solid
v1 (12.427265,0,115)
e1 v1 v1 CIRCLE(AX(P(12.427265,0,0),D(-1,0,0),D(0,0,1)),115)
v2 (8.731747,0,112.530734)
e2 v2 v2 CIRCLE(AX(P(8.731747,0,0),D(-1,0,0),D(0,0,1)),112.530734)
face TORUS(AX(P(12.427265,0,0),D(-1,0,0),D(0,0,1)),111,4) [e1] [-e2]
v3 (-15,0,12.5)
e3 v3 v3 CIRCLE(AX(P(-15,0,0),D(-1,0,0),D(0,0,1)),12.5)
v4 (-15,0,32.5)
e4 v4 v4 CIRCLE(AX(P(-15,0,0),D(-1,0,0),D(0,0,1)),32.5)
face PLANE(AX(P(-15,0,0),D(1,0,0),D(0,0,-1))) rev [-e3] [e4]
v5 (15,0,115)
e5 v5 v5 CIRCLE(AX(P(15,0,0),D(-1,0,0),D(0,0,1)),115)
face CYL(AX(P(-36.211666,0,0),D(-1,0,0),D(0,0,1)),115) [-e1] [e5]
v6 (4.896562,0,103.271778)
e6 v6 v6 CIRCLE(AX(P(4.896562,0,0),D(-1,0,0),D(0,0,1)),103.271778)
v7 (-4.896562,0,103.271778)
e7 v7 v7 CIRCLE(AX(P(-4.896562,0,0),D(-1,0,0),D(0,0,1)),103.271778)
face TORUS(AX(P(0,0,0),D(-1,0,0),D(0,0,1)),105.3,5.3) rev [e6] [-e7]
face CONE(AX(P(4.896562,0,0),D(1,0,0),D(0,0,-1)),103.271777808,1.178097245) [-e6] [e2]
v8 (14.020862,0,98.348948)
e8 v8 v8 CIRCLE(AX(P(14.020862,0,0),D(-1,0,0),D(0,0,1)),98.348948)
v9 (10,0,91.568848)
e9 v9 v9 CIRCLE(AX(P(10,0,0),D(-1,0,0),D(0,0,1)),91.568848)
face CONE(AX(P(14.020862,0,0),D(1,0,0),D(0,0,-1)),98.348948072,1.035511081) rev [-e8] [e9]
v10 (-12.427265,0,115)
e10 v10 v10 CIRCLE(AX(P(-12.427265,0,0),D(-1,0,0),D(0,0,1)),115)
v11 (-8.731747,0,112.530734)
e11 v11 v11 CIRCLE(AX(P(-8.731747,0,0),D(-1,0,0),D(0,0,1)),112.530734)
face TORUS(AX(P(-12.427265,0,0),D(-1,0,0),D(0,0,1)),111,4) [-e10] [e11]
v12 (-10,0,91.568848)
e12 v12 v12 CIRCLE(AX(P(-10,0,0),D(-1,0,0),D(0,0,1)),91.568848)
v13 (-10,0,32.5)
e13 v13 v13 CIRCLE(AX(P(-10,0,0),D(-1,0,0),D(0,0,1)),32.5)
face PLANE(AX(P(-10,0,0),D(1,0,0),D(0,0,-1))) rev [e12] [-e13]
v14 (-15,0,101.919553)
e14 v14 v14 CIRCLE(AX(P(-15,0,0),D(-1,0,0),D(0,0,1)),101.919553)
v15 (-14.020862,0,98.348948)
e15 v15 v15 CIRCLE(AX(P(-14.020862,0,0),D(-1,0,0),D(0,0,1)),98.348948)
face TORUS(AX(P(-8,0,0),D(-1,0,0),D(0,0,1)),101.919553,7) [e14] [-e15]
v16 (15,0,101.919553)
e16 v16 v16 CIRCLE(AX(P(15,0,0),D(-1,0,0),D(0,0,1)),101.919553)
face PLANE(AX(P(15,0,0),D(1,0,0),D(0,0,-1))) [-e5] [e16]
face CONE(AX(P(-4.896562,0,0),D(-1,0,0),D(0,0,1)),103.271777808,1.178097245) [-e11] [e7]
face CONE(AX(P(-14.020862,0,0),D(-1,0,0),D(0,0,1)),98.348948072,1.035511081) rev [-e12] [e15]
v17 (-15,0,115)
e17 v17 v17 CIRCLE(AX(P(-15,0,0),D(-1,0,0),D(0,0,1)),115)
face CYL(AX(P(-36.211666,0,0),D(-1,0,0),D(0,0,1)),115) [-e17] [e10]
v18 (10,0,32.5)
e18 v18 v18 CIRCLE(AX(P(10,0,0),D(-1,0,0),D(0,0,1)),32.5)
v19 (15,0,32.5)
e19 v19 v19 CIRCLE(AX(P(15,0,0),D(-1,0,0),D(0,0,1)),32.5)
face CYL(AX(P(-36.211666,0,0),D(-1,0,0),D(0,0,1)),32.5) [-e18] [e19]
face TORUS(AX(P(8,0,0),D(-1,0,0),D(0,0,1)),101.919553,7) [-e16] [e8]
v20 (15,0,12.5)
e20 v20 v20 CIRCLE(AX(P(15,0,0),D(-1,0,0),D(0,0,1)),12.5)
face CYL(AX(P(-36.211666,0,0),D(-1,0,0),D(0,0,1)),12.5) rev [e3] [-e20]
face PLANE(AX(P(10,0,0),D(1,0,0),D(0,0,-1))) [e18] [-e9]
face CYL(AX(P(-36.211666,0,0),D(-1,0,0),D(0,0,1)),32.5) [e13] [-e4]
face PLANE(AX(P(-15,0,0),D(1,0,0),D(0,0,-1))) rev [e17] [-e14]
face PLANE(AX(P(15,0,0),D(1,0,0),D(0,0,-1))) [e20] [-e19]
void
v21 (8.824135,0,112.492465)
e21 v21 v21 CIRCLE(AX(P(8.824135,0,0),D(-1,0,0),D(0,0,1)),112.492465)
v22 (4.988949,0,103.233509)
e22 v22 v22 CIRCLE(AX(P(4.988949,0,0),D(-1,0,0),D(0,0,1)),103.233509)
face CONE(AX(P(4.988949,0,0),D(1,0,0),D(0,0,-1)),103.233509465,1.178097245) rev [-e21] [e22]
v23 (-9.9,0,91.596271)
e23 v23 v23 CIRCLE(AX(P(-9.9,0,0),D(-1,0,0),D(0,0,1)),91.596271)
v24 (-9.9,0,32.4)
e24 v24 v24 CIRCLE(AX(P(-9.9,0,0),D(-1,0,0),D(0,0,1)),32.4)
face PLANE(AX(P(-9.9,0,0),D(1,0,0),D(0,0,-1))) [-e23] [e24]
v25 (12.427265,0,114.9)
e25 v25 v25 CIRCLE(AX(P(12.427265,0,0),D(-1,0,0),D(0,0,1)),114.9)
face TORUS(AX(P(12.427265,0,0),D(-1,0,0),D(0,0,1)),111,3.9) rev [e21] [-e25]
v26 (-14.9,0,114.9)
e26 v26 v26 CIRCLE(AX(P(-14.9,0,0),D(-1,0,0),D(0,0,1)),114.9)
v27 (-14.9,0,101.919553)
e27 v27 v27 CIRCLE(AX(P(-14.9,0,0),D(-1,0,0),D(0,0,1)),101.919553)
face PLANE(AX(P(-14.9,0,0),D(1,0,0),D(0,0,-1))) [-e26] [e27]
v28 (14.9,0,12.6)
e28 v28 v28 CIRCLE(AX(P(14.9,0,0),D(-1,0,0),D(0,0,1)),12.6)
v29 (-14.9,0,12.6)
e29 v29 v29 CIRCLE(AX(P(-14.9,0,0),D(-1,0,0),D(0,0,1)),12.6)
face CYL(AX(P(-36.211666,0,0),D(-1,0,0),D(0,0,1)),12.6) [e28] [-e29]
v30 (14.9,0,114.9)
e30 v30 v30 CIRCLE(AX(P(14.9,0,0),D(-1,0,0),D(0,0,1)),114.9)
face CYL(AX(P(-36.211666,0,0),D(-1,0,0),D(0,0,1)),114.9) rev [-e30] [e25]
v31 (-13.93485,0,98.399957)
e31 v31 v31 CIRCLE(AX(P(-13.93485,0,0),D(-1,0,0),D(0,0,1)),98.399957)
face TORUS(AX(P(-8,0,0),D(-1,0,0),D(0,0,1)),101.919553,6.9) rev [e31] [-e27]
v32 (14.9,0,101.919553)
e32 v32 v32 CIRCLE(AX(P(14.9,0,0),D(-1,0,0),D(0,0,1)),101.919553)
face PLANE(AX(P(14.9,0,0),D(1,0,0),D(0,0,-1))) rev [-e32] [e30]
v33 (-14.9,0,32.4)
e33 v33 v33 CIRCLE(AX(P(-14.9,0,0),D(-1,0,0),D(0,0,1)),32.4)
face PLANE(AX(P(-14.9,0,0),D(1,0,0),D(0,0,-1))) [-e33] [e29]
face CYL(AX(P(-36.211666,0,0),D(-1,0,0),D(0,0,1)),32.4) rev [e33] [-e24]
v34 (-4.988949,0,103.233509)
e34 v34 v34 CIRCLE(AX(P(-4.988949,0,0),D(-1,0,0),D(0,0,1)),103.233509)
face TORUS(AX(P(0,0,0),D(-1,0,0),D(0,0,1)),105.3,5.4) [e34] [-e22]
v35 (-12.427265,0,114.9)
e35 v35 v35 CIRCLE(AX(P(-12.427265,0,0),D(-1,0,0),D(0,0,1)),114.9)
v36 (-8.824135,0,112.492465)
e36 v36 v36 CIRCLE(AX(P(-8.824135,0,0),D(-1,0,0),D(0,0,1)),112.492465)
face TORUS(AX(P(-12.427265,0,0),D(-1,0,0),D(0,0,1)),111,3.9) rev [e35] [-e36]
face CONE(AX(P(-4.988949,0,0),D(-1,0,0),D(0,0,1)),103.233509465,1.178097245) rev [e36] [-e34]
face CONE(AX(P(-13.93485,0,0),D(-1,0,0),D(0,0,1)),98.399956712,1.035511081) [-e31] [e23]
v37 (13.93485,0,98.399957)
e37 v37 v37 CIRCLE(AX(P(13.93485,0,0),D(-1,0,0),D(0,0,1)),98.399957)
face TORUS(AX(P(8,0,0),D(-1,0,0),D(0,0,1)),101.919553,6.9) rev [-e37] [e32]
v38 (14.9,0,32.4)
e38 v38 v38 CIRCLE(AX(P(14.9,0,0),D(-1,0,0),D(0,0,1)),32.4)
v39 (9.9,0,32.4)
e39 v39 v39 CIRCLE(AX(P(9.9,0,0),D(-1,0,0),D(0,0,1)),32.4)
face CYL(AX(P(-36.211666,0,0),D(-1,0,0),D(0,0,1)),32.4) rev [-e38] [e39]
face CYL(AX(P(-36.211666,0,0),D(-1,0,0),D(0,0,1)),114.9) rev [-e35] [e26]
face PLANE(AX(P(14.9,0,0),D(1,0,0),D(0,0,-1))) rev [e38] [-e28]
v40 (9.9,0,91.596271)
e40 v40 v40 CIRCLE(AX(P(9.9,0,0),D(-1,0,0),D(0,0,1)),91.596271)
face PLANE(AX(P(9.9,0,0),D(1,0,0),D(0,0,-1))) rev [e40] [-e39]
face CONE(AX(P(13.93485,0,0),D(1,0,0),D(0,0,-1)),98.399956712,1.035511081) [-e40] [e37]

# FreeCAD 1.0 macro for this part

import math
import FreeCAD as App
import Part
import Sketcher
Q = App.Units.Quantity

doc = App.newDocument("Part")
body = doc.addObject("PartDesign::Body", "Body")

sketch1 = doc.addObject("Sketcher::SketchObject", "Sketch")
body.addObject(sketch1)
sketch1.AttachmentSupport = (doc.XY_Plane, [""])
sketch1.MapMode = "FlatFace"
sketch1.addGeometry([
    Part.LineSegment(App.Vector(15, 101.9, 0), App.Vector(15, 115, 0)),
    Part.LineSegment(App.Vector(15, 115, 0), App.Vector(12.4, 115, 0)),
    Part.ArcOfCircle(Part.Circle(App.Vector(12.4, 111, 0), App.Vector(0, 0, 1), 4), math.radians(90), math.radians(158)),
    Part.LineSegment(App.Vector(8.7, 112.5, 0), App.Vector(4.9, 103.3, 0)),
    Part.ArcOfCircle(Part.Circle(App.Vector(0, 105.3, 0), App.Vector(0, 0, 1), 5.3), math.radians(-157), math.radians(-23)),
    Part.LineSegment(App.Vector(-4.9, 103.3, 0), App.Vector(-8.7, 112.5, 0)),
    Part.ArcOfCircle(Part.Circle(App.Vector(-12.4, 111, 0), App.Vector(0, 0, 1), 4), math.radians(22), math.radians(90)),
    Part.LineSegment(App.Vector(-12.4, 115, 0), App.Vector(-15, 115, 0)),
    Part.LineSegment(App.Vector(-15, 115, 0), App.Vector(-15, 101.9, 0)),
    Part.ArcOfCircle(Part.Circle(App.Vector(-8, 101.9, 0), App.Vector(0, 0, 1), 7), math.radians(-180), math.radians(-149)),
    Part.LineSegment(App.Vector(-14, 98.3, 0), App.Vector(-10, 91.6, 0)),
    Part.LineSegment(App.Vector(-10, 91.6, 0), App.Vector(-10, 32.5, 0)),
    Part.LineSegment(App.Vector(-10, 32.5, 0), App.Vector(-15, 32.5, 0)),
    Part.LineSegment(App.Vector(-15, 32.5, 0), App.Vector(-15, 12.5, 0)),
    Part.LineSegment(App.Vector(-15, 12.5, 0), App.Vector(15, 12.5, 0)),
    Part.LineSegment(App.Vector(15, 12.5, 0), App.Vector(15, 32.5, 0)),
    Part.LineSegment(App.Vector(15, 32.5, 0), App.Vector(10, 32.5, 0)),
    Part.LineSegment(App.Vector(10, 32.5, 0), App.Vector(10, 91.6, 0)),
    Part.LineSegment(App.Vector(10, 91.6, 0), App.Vector(14, 98.3, 0)),
    Part.ArcOfCircle(Part.Circle(App.Vector(8, 101.9, 0), App.Vector(0, 0, 1), 7), math.radians(-31), math.radians(0)),
    Part.LineSegment(App.Vector(14.9, 114.9, 0), App.Vector(14.9, 101.9, 0)),
    Part.ArcOfCircle(Part.Circle(App.Vector(8, 101.9, 0), App.Vector(0, 0, 1), 6.9), math.radians(-31), math.radians(0)),
    Part.LineSegment(App.Vector(13.9, 98.4, 0), App.Vector(9.9, 91.6, 0)),
    Part.LineSegment(App.Vector(9.9, 91.6, 0), App.Vector(9.9, 32.4, 0)),
    Part.LineSegment(App.Vector(9.9, 32.4, 0), App.Vector(14.9, 32.4, 0)),
    Part.LineSegment(App.Vector(14.9, 32.4, 0), App.Vector(14.9, 12.6, 0)),
    Part.LineSegment(App.Vector(14.9, 12.6, 0), App.Vector(-14.9, 12.6, 0)),
    Part.LineSegment(App.Vector(-14.9, 12.6, 0), App.Vector(-14.9, 32.4, 0)),
    Part.LineSegment(App.Vector(-14.9, 32.4, 0), App.Vector(-9.9, 32.4, 0)),
    Part.LineSegment(App.Vector(-9.9, 32.4, 0), App.Vector(-9.9, 91.6, 0)),
    Part.LineSegment(App.Vector(-9.9, 91.6, 0), App.Vector(-13.9, 98.4, 0)),
    Part.ArcOfCircle(Part.Circle(App.Vector(-8, 101.9, 0), App.Vector(0, 0, 1), 6.9), math.radians(180), math.radians(211)),
    Part.LineSegment(App.Vector(-14.9, 101.9, 0), App.Vector(-14.9, 114.9, 0)),
    Part.LineSegment(App.Vector(-14.9, 114.9, 0), App.Vector(-12.4, 114.9, 0)),
    Part.ArcOfCircle(Part.Circle(App.Vector(-12.4, 111, 0), App.Vector(0, 0, 1), 3.9), math.radians(22), math.radians(90)),
    Part.LineSegment(App.Vector(-8.8, 112.5, 0), App.Vector(-5, 103.2, 0)),
    Part.ArcOfCircle(Part.Circle(App.Vector(0, 105.3, 0), App.Vector(0, 0, 1), 5.4), math.radians(-157), math.radians(-23)),
    Part.LineSegment(App.Vector(5, 103.2, 0), App.Vector(8.8, 112.5, 0)),
    Part.ArcOfCircle(Part.Circle(App.Vector(12.4, 111, 0), App.Vector(0, 0, 1), 3.9), math.radians(90), math.radians(158)),
    Part.LineSegment(App.Vector(12.4, 114.9, 0), App.Vector(14.9, 114.9, 0)),
], False)
sketch1.addConstraint([
    Sketcher.Constraint("Coincident", 0, 2, 1, 1),
    Sketcher.Constraint("Tangent", 1, 2, 2, 1),
    Sketcher.Constraint("Tangent", 2, 2, 3, 1),
    Sketcher.Constraint("Tangent", 3, 2, 4, 2),
    Sketcher.Constraint("Tangent", 4, 1, 5, 1),
    Sketcher.Constraint("Tangent", 5, 2, 6, 1),
    Sketcher.Constraint("Tangent", 6, 2, 7, 1),
    Sketcher.Constraint("Coincident", 7, 2, 8, 1),
    Sketcher.Constraint("Tangent", 8, 2, 9, 1),
    Sketcher.Constraint("Tangent", 9, 2, 10, 1),
    Sketcher.Constraint("Coincident", 10, 2, 11, 1),
    Sketcher.Constraint("Coincident", 11, 2, 12, 1),
    Sketcher.Constraint("Coincident", 12, 2, 13, 1),
    Sketcher.Constraint("Coincident", 13, 2, 14, 1),
    Sketcher.Constraint("Coincident", 14, 2, 15, 1),
    Sketcher.Constraint("Coincident", 15, 2, 16, 1),
    Sketcher.Constraint("Coincident", 16, 2, 17, 1),
    Sketcher.Constraint("Coincident", 17, 2, 18, 1),
    Sketcher.Constraint("Tangent", 18, 2, 19, 1),
    Sketcher.Constraint("Tangent", 19, 2, 0, 1),
    Sketcher.Constraint("Tangent", 20, 2, 21, 2),
    Sketcher.Constraint("Tangent", 21, 1, 22, 1),
    Sketcher.Constraint("Coincident", 22, 2, 23, 1),
    Sketcher.Constraint("Coincident", 23, 2, 24, 1),
    Sketcher.Constraint("Coincident", 24, 2, 25, 1),
    Sketcher.Constraint("Coincident", 25, 2, 26, 1),
    Sketcher.Constraint("Coincident", 26, 2, 27, 1),
    Sketcher.Constraint("Coincident", 27, 2, 28, 1),
    Sketcher.Constraint("Coincident", 28, 2, 29, 1),
    Sketcher.Constraint("Coincident", 29, 2, 30, 1),
    Sketcher.Constraint("Tangent", 30, 2, 31, 2),
    Sketcher.Constraint("Tangent", 31, 1, 32, 1),
    Sketcher.Constraint("Coincident", 32, 2, 33, 1),
    Sketcher.Constraint("Tangent", 33, 2, 34, 2),
    Sketcher.Constraint("Tangent", 34, 1, 35, 1),
    Sketcher.Constraint("Tangent", 35, 2, 36, 1),
    Sketcher.Constraint("Tangent", 36, 2, 37, 1),
    Sketcher.Constraint("Tangent", 37, 2, 38, 2),
    Sketcher.Constraint("Tangent", 38, 1, 39, 1),
    Sketcher.Constraint("Coincident", 39, 2, 20, 1),
    Sketcher.Constraint("Vertical", 0),
    Sketcher.Constraint("Horizontal", 1),
    Sketcher.Constraint("Horizontal", 7),
    Sketcher.Constraint("Vertical", 8),
    Sketcher.Constraint("Vertical", 11),
    Sketcher.Constraint("Horizontal", 12),
    Sketcher.Constraint("Vertical", 13),
    Sketcher.Constraint("Horizontal", 14),
    Sketcher.Constraint("Vertical", 15),
    Sketcher.Constraint("Horizontal", 16),
    Sketcher.Constraint("Vertical", 17),
    Sketcher.Constraint("Vertical", 20),
    Sketcher.Constraint("Vertical", 23),
    Sketcher.Constraint("Horizontal", 24),
    Sketcher.Constraint("Vertical", 25),
    Sketcher.Constraint("Horizontal", 26),
    Sketcher.Constraint("Vertical", 27),
    Sketcher.Constraint("Horizontal", 28),
    Sketcher.Constraint("Vertical", 29),
    Sketcher.Constraint("Vertical", 32),
    Sketcher.Constraint("Horizontal", 33),
    Sketcher.Constraint("Horizontal", 39),
    Sketcher.Constraint("Coincident", 21, 3, 19, 3),
    Sketcher.Constraint("Coincident", 31, 3, 9, 3),
    Sketcher.Constraint("Coincident", 34, 3, 6, 3),
    Sketcher.Constraint("Coincident", 36, 3, 4, 3),
    Sketcher.Constraint("Coincident", 38, 3, 2, 3),
    Sketcher.Constraint("Equal", 2, 6),
    Sketcher.Constraint("Equal", 9, 19),
    Sketcher.Constraint("Equal", 21, 31),
    Sketcher.Constraint("Equal", 34, 38),
    Sketcher.Constraint("Symmetric", 2, 3, 6, 3, -2),
    Sketcher.Constraint("Symmetric", 9, 3, 19, 3, -2),
    Sketcher.Constraint("Symmetric", 12, 2, 15, 2, -2),
    Sketcher.Constraint("Symmetric", 10, 2, 17, 2, -2),
    Sketcher.Constraint("Symmetric", 24, 2, 27, 2, -2),
    Sketcher.Constraint("Symmetric", 22, 2, 29, 2, -2),
    Sketcher.Constraint("PointOnObject", 4, 3, -2),
    Sketcher.Constraint("Parallel", 18, 22),
    Sketcher.Constraint("Parallel", 5, 35),
    Sketcher.Constraint("Vertical", 8, 2, 12, 2),
    Sketcher.Constraint("Vertical", 20, 2, 24, 2),
    Sketcher.Constraint("Equal", 16, 24),
    Sketcher.Constraint("Radius", 2, Q("4 mm")),
    Sketcher.Constraint("Radius", 9, Q("7 mm")),
    Sketcher.Constraint("Radius", 4, Q("5.3 mm")),
    Sketcher.Constraint("Radius", 21, Q("6.9 mm")),
    Sketcher.Constraint("Radius", 34, Q("3.9 mm")),
    Sketcher.Constraint("DistanceX", 12, 2, 12, 1, Q("5 mm")),
    Sketcher.Constraint("DistanceX", 14, 1, 14, 2, Q("30 mm")),
    Sketcher.Constraint("DistanceY", 13, 2, 13, 1, Q("20 mm")),
    Sketcher.Constraint("DistanceY", 25, 2, 25, 1, Q("19.8 mm")),
    Sketcher.Constraint("DistanceY", -1, 1, 2, 3, Q("111 mm")),
    Sketcher.Constraint("Angle", 3, Q("-112.5 deg")),
    Sketcher.Constraint("DistanceY", -1, 1, 4, 3, Q("105.3 mm")),
    Sketcher.Constraint("DistanceY", -1, 1, 11, 2, Q("32.5 mm")),
    Sketcher.Constraint("DistanceY", -1, 1, 23, 2, Q("32.4 mm")),
    Sketcher.Constraint("DistanceY", 11, 2, 11, 1, Q("59.068848 mm")),
    Sketcher.Constraint("DistanceX", 9, 2, 4, 1, Q("9.124301 mm")),
])
revolution = doc.addObject("PartDesign::Revolution", "Revolution")
body.addObject(revolution)
revolution.Profile = sketch1
revolution.ReferenceAxis = (sketch1, ["H_Axis"])
revolution.Angle = 360

doc.recompute()
